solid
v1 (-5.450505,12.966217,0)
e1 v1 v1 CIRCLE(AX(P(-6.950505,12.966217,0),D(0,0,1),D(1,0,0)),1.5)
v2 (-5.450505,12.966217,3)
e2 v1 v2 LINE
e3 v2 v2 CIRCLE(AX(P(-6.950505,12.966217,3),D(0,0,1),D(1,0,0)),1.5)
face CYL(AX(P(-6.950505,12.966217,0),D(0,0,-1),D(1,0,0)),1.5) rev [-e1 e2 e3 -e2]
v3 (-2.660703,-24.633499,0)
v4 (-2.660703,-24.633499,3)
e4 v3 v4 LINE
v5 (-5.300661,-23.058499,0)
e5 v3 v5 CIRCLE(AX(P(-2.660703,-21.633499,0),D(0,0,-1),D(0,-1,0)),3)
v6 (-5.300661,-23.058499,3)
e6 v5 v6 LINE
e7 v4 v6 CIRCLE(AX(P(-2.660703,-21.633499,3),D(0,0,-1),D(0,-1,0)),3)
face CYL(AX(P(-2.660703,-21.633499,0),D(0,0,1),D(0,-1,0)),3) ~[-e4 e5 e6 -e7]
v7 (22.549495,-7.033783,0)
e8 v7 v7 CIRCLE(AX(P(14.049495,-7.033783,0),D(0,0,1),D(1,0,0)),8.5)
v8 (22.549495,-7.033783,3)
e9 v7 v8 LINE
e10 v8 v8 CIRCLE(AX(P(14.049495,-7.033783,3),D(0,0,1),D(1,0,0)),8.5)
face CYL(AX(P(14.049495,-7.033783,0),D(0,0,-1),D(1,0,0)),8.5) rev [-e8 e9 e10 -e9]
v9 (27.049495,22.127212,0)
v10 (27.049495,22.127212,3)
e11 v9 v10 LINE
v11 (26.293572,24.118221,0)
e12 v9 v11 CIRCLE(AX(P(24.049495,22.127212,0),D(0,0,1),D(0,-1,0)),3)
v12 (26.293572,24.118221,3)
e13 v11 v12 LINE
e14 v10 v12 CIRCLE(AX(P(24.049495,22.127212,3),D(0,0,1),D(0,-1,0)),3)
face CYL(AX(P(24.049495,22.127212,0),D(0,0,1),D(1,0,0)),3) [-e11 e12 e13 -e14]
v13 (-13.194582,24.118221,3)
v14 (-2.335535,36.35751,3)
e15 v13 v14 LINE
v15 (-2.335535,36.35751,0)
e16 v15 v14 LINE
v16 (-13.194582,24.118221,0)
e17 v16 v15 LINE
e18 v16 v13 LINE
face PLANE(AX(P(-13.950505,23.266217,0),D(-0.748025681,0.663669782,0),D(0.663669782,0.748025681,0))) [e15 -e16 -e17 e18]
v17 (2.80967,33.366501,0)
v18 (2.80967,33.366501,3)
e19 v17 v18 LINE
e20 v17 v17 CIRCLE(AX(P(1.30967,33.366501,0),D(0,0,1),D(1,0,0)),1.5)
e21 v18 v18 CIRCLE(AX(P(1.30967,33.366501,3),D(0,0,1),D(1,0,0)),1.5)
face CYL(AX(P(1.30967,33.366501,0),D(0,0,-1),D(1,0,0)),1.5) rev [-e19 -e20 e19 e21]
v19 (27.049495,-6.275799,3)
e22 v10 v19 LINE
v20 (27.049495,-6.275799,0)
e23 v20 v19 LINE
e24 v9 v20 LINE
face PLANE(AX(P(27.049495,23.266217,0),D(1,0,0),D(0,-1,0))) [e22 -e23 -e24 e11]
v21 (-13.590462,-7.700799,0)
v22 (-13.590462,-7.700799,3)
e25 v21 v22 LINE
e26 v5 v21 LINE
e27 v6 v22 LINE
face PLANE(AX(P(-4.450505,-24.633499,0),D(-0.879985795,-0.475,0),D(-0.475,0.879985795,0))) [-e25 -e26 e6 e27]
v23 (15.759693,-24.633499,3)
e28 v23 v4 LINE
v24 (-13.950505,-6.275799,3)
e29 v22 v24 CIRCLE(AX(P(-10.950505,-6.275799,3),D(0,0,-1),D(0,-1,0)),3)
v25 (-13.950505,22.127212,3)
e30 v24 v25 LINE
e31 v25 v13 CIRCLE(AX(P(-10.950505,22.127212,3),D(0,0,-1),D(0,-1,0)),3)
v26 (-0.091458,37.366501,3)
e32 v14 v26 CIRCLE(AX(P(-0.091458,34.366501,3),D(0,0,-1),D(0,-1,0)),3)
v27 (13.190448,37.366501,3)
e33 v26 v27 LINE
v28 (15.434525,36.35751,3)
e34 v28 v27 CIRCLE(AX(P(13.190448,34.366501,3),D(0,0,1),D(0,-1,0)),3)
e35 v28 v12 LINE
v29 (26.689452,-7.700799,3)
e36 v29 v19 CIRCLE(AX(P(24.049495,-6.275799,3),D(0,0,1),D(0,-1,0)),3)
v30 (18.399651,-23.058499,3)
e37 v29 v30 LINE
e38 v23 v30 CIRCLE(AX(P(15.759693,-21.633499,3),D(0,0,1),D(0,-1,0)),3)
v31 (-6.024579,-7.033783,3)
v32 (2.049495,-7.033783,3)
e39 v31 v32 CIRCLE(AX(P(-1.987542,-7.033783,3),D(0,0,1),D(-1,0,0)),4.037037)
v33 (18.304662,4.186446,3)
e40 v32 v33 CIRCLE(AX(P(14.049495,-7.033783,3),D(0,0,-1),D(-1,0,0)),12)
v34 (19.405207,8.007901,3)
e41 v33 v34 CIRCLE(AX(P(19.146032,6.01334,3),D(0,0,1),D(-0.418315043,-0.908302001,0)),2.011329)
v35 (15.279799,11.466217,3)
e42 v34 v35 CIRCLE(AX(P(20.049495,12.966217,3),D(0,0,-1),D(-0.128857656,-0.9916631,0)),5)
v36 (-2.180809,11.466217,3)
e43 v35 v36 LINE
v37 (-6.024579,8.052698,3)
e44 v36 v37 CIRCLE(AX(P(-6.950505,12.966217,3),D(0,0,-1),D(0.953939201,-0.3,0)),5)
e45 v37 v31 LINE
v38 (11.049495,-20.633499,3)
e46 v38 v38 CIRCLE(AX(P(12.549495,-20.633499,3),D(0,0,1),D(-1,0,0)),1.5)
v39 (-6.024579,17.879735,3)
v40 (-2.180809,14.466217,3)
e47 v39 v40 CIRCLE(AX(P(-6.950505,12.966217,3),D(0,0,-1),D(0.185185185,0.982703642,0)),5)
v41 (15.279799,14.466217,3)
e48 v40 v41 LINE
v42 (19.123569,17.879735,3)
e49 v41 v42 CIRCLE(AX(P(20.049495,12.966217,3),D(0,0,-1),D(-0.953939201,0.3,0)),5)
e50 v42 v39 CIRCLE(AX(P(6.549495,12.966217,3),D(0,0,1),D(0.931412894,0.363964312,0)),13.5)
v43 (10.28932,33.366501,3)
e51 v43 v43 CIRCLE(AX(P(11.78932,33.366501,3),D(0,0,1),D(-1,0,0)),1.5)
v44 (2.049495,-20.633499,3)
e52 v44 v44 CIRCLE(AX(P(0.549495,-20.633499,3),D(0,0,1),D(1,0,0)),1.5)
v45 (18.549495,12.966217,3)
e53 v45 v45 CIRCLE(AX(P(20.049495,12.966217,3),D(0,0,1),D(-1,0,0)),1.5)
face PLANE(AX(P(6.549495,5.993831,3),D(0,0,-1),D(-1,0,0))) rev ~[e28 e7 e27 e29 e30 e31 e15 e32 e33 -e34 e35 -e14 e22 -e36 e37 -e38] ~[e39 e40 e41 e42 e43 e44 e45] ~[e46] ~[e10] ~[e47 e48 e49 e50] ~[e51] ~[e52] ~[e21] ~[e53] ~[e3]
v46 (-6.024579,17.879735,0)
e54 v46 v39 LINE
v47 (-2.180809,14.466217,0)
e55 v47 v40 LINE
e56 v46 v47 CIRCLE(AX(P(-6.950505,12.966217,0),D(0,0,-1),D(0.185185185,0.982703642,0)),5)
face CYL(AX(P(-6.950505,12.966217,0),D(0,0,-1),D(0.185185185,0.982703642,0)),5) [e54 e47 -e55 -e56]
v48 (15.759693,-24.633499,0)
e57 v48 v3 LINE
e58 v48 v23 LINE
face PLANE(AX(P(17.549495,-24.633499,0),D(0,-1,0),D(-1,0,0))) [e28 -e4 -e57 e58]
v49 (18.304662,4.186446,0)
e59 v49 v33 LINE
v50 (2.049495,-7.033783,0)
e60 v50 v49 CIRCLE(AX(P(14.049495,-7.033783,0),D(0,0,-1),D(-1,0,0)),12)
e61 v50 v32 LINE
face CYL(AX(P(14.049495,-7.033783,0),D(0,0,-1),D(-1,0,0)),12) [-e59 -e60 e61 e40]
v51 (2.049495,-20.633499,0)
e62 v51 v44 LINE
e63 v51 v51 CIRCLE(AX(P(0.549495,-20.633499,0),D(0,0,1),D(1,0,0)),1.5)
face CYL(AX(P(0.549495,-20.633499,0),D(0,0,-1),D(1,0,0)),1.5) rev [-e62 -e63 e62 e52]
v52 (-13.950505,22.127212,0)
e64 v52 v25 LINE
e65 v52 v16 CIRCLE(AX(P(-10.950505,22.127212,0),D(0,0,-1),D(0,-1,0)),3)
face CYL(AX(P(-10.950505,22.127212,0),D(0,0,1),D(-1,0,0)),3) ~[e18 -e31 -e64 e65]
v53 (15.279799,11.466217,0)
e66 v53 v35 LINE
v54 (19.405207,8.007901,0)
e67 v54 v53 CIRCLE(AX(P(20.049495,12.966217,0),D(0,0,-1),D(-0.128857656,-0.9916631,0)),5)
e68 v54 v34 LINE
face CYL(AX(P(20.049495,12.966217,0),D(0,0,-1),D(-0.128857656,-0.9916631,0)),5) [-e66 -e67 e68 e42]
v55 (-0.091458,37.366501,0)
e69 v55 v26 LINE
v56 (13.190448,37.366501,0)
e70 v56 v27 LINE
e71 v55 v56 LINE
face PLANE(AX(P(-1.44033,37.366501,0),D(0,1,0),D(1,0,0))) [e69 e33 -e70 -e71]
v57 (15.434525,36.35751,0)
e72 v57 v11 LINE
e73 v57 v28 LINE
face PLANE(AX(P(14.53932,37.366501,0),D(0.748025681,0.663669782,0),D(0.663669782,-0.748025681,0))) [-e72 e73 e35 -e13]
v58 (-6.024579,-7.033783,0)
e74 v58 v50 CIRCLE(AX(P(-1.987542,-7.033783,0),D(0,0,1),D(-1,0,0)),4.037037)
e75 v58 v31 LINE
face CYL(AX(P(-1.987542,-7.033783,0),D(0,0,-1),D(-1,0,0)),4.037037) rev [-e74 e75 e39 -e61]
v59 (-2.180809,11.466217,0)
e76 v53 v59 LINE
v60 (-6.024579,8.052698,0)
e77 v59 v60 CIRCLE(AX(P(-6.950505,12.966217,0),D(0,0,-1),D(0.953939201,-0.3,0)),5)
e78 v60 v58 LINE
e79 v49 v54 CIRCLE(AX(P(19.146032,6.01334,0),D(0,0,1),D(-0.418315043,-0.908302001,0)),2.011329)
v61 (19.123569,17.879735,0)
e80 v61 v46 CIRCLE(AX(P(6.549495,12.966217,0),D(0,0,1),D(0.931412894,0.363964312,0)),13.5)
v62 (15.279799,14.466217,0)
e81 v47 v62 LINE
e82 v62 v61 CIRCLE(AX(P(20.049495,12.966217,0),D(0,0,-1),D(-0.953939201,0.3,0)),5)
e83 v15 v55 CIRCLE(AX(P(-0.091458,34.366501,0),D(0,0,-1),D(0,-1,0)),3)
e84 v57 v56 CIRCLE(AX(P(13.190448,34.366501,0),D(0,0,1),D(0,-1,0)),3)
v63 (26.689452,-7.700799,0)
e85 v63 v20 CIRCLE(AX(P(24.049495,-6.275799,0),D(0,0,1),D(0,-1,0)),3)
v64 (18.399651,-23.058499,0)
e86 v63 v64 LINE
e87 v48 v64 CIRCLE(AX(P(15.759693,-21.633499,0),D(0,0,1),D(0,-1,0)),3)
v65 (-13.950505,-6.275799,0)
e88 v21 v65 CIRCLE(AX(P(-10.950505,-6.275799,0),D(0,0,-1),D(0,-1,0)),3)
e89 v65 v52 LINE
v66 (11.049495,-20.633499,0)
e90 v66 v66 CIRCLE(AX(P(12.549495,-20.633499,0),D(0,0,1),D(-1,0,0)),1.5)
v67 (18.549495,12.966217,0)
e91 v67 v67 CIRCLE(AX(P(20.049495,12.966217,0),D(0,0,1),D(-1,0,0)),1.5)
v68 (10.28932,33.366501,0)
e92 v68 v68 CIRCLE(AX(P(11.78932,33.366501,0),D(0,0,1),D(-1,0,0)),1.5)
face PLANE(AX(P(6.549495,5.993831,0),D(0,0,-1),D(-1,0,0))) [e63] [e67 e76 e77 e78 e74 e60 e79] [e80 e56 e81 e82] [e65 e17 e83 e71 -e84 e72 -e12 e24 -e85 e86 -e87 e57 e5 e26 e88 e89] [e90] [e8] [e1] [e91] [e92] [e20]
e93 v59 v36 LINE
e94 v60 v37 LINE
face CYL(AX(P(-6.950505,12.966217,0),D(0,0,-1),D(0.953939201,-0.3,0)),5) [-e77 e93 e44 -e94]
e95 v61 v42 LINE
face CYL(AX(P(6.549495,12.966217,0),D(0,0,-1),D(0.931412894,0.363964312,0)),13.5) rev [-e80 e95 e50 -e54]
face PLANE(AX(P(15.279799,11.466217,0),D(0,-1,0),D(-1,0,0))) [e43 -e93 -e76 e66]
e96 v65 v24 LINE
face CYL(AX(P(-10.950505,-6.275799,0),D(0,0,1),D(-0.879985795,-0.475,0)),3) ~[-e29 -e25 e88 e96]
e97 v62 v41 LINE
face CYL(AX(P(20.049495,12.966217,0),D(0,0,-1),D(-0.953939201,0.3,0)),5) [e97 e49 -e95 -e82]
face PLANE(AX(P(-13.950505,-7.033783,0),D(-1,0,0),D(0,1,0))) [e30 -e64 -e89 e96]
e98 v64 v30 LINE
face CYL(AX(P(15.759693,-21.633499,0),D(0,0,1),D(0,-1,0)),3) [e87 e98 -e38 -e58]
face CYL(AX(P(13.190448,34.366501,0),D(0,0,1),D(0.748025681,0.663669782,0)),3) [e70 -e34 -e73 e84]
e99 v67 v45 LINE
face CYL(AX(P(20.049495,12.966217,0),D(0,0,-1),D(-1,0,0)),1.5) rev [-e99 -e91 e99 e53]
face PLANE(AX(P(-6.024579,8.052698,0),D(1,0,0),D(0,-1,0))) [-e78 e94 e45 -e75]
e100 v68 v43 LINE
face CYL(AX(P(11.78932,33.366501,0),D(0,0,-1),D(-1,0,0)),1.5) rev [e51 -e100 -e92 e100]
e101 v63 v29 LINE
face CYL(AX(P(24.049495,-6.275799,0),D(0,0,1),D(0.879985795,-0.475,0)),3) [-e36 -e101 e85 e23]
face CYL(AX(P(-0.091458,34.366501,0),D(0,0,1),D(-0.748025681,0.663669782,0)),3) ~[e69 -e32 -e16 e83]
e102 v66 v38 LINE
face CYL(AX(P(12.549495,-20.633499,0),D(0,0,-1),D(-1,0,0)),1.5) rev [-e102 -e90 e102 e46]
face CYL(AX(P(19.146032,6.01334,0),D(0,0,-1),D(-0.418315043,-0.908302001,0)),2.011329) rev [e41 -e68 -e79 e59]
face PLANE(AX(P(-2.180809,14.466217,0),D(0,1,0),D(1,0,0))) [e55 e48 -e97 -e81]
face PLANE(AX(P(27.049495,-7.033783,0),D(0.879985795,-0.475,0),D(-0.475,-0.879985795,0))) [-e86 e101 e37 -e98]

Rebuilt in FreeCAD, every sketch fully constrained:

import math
import FreeCAD as App
import Part
import Sketcher
from FreeCAD import Vector


def edges_at(feature, points):
    """Names of the edges that pass closest to the given points."""
    edges = feature.Shape.Edges
    near = lambda p: min(range(len(edges)), key=lambda i: edges[i].distToShape(Part.Vertex(*p))[0])
    return sorted({f"Edge{near(p) + 1}" for p in points})

doc = App.newDocument("Part")
params = doc.addObject("Spreadsheet::Sheet", "Params")
for row, (alias, value) in enumerate([
    ("sketch1_diameter", "3 mm"),
    ("sketch1_diameter2", "17 mm"),
    ("sketch1_radius", "5 mm"),
    ("sketch1_radius2", "12 mm"),
    ("sketch1_radius3", "13.5 mm"),
    ("pad1_length", "3 mm"),
    ("fillet_radius", "3 mm"),
], start=1):
    params.set(f"A{row}", alias)
    params.set(f"B{row}", "=" + value)
    params.setAlias(f"B{row}", alias)

body = doc.addObject("PartDesign::Body", "Body")

# Sketch on XY plane
sketch1 = doc.addObject("Sketcher::SketchObject", "Sketch")
body.addObject(sketch1)
sketch1.AttachmentSupport = (doc.XY_Plane, [""])
sketch1.MapMode = "FlatFace"
sketch1.addGeometry(Part.LineSegment(Vector(-4.450505, -24.633499, 0), Vector(17.549495, -24.633499, 0)), False)
sketch1.addGeometry(Part.LineSegment(Vector(17.549495, -24.633499, 0), Vector(27.049495, -7.033783, 0)), False)
sketch1.addGeometry(Part.LineSegment(Vector(27.049495, -7.033783, 0), Vector(27.049495, 23.266217, 0)), False)
sketch1.addGeometry(Part.LineSegment(Vector(27.049495, 23.266217, 0), Vector(14.53932, 37.366501, 0)), False)
sketch1.addGeometry(Part.LineSegment(Vector(14.53932, 37.366501, 0), Vector(-1.44033, 37.366501, 0)), False)
sketch1.addGeometry(Part.LineSegment(Vector(-1.44033, 37.366501, 0), Vector(-13.950505, 23.266217, 0)), False)
sketch1.addGeometry(Part.LineSegment(Vector(-13.950505, 23.266217, 0), Vector(-13.950505, -7.033783, 0)), False)
sketch1.addGeometry(Part.LineSegment(Vector(-13.950505, -7.033783, 0), Vector(-4.450505, -24.633499, 0)), False)
sketch1.addGeometry(Part.Circle(Vector(12.549495, -20.633499, 0), Vector(0, 0, 1), 1.5), False)
sketch1.addGeometry(Part.Circle(Vector(14.049495, -7.033783, 0), Vector(0, 0, 1), 8.5), False)
sketch1.addGeometry(Part.ArcOfCircle(Part.Circle(Vector(-6.950505, 12.966217, 0), Vector(0, 0, 1), 5), math.radians(-79.328071), math.radians(-17.457603)), False)
sketch1.addGeometry(Part.LineSegment(Vector(-2.180809, 11.466217, 0), Vector(15.279799, 11.466217, 0)), False)
sketch1.addGeometry(Part.ArcOfCircle(Part.Circle(Vector(20.049495, 12.966217, 0), Vector(0, 0, 1), 5), math.radians(-162.542397), math.radians(-97.403586)), False)
sketch1.addGeometry(Part.ArcOfCircle(Part.Circle(Vector(19.146032, 6.01334, 0), Vector(0, 0, 1), 2.011329), math.radians(-114.728255), math.radians(82.596414)), False)
sketch1.addGeometry(Part.ArcOfCircle(Part.Circle(Vector(14.049495, -7.033783, 0), Vector(0, 0, 1), 12), math.radians(69.231235), math.radians(180)), False)
sketch1.addGeometry(Part.ArcOfCircle(Part.Circle(Vector(-1.987542, -7.033783, 0), Vector(0, 0, 1), 4.037037), math.radians(180), math.radians(360)), False)
sketch1.addGeometry(Part.LineSegment(Vector(-6.024579, -7.033783, 0), Vector(-6.024579, 8.052698, 0)), False)
sketch1.addGeometry(Part.Circle(Vector(0.549495, -20.633499, 0), Vector(0, 0, 1), 1.5), False)
sketch1.addGeometry(Part.Circle(Vector(20.049495, 12.966217, 0), Vector(0, 0, 1), 1.5), False)
sketch1.addGeometry(Part.Circle(Vector(11.78932, 33.366501, 0), Vector(0, 0, 1), 1.5), False)
sketch1.addGeometry(Part.ArcOfCircle(Part.Circle(Vector(-6.950505, 12.966217, 0), Vector(0, 0, 1), 5), math.radians(17.457603), math.radians(79.328071)), False)
sketch1.addGeometry(Part.ArcOfCircle(Part.Circle(Vector(6.549495, 12.966217, 0), Vector(0, 0, 1), 13.5), math.radians(21.343859), math.radians(158.656141)), False)
sketch1.addGeometry(Part.ArcOfCircle(Part.Circle(Vector(20.049495, 12.966217, 0), Vector(0, 0, 1), 5), math.radians(100.671929), math.radians(162.542397)), False)
sketch1.addGeometry(Part.LineSegment(Vector(15.279799, 14.466217, 0), Vector(-2.180809, 14.466217, 0)), False)
sketch1.addGeometry(Part.Circle(Vector(-6.950505, 12.966217, 0), Vector(0, 0, 1), 1.5), False)
sketch1.addGeometry(Part.Circle(Vector(1.30967, 33.366501, 0), Vector(0, 0, 1), 1.5), False)
sketch1.addConstraint(Sketcher.Constraint("Coincident", 0, 2, 1, 1))
sketch1.addConstraint(Sketcher.Constraint("Coincident", 1, 2, 2, 1))
sketch1.addConstraint(Sketcher.Constraint("Coincident", 2, 2, 3, 1))
sketch1.addConstraint(Sketcher.Constraint("Coincident", 3, 2, 4, 1))
sketch1.addConstraint(Sketcher.Constraint("Coincident", 4, 2, 5, 1))
sketch1.addConstraint(Sketcher.Constraint("Coincident", 5, 2, 6, 1))
sketch1.addConstraint(Sketcher.Constraint("Coincident", 6, 2, 7, 1))
sketch1.addConstraint(Sketcher.Constraint("Coincident", 7, 2, 0, 1))
sketch1.addConstraint(Sketcher.Constraint("Coincident", 10, 2, 11, 1))
sketch1.addConstraint(Sketcher.Constraint("Coincident", 11, 2, 12, 1))
sketch1.addConstraint(Sketcher.Constraint("Tangent", 12, 2, 13, 2))
sketch1.addConstraint(Sketcher.Constraint("Coincident", 13, 1, 14, 1))
sketch1.addConstraint(Sketcher.Constraint("Tangent", 14, 2, 15, 2))
sketch1.addConstraint(Sketcher.Constraint("Tangent", 15, 1, 16, 1))
sketch1.addConstraint(Sketcher.Constraint("Coincident", 16, 2, 10, 1))
sketch1.addConstraint(Sketcher.Constraint("Coincident", 20, 2, 21, 2))
sketch1.addConstraint(Sketcher.Constraint("Coincident", 21, 1, 22, 1))
sketch1.addConstraint(Sketcher.Constraint("Coincident", 22, 2, 23, 1))
sketch1.addConstraint(Sketcher.Constraint("Coincident", 23, 2, 20, 1))
sketch1.addConstraint(Sketcher.Constraint("Horizontal", 0))
sketch1.addConstraint(Sketcher.Constraint("Vertical", 2))
sketch1.addConstraint(Sketcher.Constraint("Horizontal", 4))
sketch1.addConstraint(Sketcher.Constraint("Vertical", 6))
sketch1.addConstraint(Sketcher.Constraint("Horizontal", 11))
sketch1.addConstraint(Sketcher.Constraint("Vertical", 16))
sketch1.addConstraint(Sketcher.Constraint("Horizontal", 23))
sketch1.addConstraint(Sketcher.Constraint("Coincident", 14, 3, 9, 3))
sketch1.addConstraint(Sketcher.Constraint("Coincident", 18, 3, 12, 3))
sketch1.addConstraint(Sketcher.Constraint("Coincident", 20, 3, 10, 3))
sketch1.addConstraint(Sketcher.Constraint("Coincident", 22, 3, 12, 3))
sketch1.addConstraint(Sketcher.Constraint("Coincident", 24, 3, 10, 3))
sketch1.addConstraint(Sketcher.Constraint("Equal", 10, 12))
sketch1.addConstraint(Sketcher.Constraint("Equal", 8, 17))
sketch1.addConstraint(Sketcher.Constraint("Equal", 17, 18))
sketch1.addConstraint(Sketcher.Constraint("Equal", 18, 19))
sketch1.addConstraint(Sketcher.Constraint("Equal", 12, 20))
sketch1.addConstraint(Sketcher.Constraint("Equal", 20, 22))
sketch1.addConstraint(Sketcher.Constraint("Equal", 19, 24))
sketch1.addConstraint(Sketcher.Constraint("Equal", 24, 25))
sketch1.addConstraint(Sketcher.Constraint("Horizontal", 10, 3, 12, 3))
sketch1.addConstraint(Sketcher.Constraint("Horizontal", 14, 3, 15, 3))
sketch1.addConstraint(Sketcher.Constraint("Horizontal", 8, 3, 17, 3))
sketch1.addConstraint(Sketcher.Constraint("Horizontal", 20, 3, 21, 3))
sketch1.addConstraint(Sketcher.Constraint("Horizontal", 19, 3, 25, 3))
sketch1.addConstraint(Sketcher.Constraint("Horizontal", 15, 3, 1, 2))
sketch1.addConstraint(Sketcher.Constraint("Horizontal", 2, 2, 5, 2))
sketch1.addConstraint(Sketcher.Constraint("Horizontal", 1, 2, 6, 2))
sketch1.addConstraint(Sketcher.Constraint("Horizontal", 20, 2, 21, 1))
sketch1.addConstraint(Sketcher.Constraint("Vertical", 16, 2, 20, 2))
sketch1.addConstraint(Sketcher.Constraint("Vertical", 11, 2, 22, 2))
sketch1.addConstraint(Sketcher.Constraint("Equal", 3, 5))
sketch1.addConstraint(Sketcher.Constraint("Equal", 1, 7))
sketch1.addConstraint(Sketcher.Constraint("Diameter", 8, 3.0))
sketch1.addConstraint(Sketcher.Constraint("Diameter", 9, 17.0))
sketch1.addConstraint(Sketcher.Constraint("Radius", 10, 5.0))
sketch1.addConstraint(Sketcher.Constraint("Radius", 14, 12.0))
sketch1.addConstraint(Sketcher.Constraint("Radius", 21, 13.5))
sketch1.addConstraint(Sketcher.Constraint("DistanceX", 0, 1, 0, 2, 22.0))
sketch1.addConstraint(Sketcher.Constraint("Distance", 1, 20.0))
sketch1.addConstraint(Sketcher.Constraint("DistanceY", 2, 1, 2, 2, 30.3))
sketch1.addConstraint(Sketcher.Constraint("DistanceX", 10, 3, 9, 3, 21.0))
sketch1.addConstraint(Sketcher.Constraint("DistanceY", 9, 3, 10, 3, 20.0))
sketch1.addConstraint(Sketcher.Constraint("DistanceX", 9, 3, 12, 3, 6.0))
sketch1.addConstraint(Sketcher.Constraint("DistanceX", 17, 3, 8, 3, 12.0))
sketch1.addConstraint(Sketcher.Constraint("DistanceX", 8, 3, 0, 2, 5.0))
sketch1.addConstraint(Sketcher.Constraint("DistanceY", 0, 2, 8, 3, 4.0))
sketch1.addConstraint(Sketcher.Constraint("DistanceX", 9, 3, 1, 2, 13.0))
sketch1.addConstraint(Sketcher.Constraint("DistanceY", 19, 3, 3, 2, 4.0))
sketch1.addConstraint(Sketcher.Constraint("DistanceX", 5, 2, 20, 3, 7.0))
sketch1.addConstraint(Sketcher.Constraint("DistanceY", 11, 2, 22, 2, 3.0))
sketch1.addConstraint(Sketcher.Constraint("Distance", 3, 18.85))
sketch1.addConstraint(Sketcher.Constraint("Radius", 13, 2.011329))
sketch1.addConstraint(Sketcher.Constraint("DistanceX", 19, 3, 3, 2, 2.75))
sketch1.addConstraint(Sketcher.Constraint("DistanceX", 4, 2, 25, 3, 2.75))
sketch1.addConstraint(Sketcher.Constraint("DistanceX", 4, 2, 4, 1, 15.979649))
sketch1.addConstraint(Sketcher.Constraint("DistanceY", 8, 3, -1, 1, 20.633499))
sketch1.addConstraint(Sketcher.Constraint("DistanceX", -1, 1, 11, 2, 15.279799))
sketch1.addConstraint(Sketcher.Constraint("DistanceY", -1, 1, 12, 2, 8.007901))
sketch1.setExpression("Constraints[52]", "Params.sketch1_diameter")
sketch1.setExpression("Constraints[53]", "Params.sketch1_diameter2")
sketch1.setExpression("Constraints[54]", "Params.sketch1_radius")
sketch1.setExpression("Constraints[55]", "Params.sketch1_radius2")
sketch1.setExpression("Constraints[56]", "Params.sketch1_radius3")
pad1 = doc.addObject("PartDesign::Pad", "Pad")
body.addObject(pad1)
pad1.Profile = sketch1
pad1.setExpression("Length", "Params.pad1_length")
doc.recompute()

fillet = doc.addObject("PartDesign::Fillet", "Fillet")
body.addObject(fillet)
fillet.Base = (pad1, edges_at(pad1, [
    (-13.951, -7.034, 1.5),
    (-13.951, 23.266, 1.5),
    (-1.44, 37.367, 1.5),
    (14.539, 37.367, 1.5),
    (27.049, 23.266, 1.5),
    (27.049, -7.034, 1.5),
    (17.549, -24.633, 1.5),
    (-4.451, -24.633, 1.5),
]))
fillet.setExpression("Radius", "Params.fillet_radius")

doc.recompute()
